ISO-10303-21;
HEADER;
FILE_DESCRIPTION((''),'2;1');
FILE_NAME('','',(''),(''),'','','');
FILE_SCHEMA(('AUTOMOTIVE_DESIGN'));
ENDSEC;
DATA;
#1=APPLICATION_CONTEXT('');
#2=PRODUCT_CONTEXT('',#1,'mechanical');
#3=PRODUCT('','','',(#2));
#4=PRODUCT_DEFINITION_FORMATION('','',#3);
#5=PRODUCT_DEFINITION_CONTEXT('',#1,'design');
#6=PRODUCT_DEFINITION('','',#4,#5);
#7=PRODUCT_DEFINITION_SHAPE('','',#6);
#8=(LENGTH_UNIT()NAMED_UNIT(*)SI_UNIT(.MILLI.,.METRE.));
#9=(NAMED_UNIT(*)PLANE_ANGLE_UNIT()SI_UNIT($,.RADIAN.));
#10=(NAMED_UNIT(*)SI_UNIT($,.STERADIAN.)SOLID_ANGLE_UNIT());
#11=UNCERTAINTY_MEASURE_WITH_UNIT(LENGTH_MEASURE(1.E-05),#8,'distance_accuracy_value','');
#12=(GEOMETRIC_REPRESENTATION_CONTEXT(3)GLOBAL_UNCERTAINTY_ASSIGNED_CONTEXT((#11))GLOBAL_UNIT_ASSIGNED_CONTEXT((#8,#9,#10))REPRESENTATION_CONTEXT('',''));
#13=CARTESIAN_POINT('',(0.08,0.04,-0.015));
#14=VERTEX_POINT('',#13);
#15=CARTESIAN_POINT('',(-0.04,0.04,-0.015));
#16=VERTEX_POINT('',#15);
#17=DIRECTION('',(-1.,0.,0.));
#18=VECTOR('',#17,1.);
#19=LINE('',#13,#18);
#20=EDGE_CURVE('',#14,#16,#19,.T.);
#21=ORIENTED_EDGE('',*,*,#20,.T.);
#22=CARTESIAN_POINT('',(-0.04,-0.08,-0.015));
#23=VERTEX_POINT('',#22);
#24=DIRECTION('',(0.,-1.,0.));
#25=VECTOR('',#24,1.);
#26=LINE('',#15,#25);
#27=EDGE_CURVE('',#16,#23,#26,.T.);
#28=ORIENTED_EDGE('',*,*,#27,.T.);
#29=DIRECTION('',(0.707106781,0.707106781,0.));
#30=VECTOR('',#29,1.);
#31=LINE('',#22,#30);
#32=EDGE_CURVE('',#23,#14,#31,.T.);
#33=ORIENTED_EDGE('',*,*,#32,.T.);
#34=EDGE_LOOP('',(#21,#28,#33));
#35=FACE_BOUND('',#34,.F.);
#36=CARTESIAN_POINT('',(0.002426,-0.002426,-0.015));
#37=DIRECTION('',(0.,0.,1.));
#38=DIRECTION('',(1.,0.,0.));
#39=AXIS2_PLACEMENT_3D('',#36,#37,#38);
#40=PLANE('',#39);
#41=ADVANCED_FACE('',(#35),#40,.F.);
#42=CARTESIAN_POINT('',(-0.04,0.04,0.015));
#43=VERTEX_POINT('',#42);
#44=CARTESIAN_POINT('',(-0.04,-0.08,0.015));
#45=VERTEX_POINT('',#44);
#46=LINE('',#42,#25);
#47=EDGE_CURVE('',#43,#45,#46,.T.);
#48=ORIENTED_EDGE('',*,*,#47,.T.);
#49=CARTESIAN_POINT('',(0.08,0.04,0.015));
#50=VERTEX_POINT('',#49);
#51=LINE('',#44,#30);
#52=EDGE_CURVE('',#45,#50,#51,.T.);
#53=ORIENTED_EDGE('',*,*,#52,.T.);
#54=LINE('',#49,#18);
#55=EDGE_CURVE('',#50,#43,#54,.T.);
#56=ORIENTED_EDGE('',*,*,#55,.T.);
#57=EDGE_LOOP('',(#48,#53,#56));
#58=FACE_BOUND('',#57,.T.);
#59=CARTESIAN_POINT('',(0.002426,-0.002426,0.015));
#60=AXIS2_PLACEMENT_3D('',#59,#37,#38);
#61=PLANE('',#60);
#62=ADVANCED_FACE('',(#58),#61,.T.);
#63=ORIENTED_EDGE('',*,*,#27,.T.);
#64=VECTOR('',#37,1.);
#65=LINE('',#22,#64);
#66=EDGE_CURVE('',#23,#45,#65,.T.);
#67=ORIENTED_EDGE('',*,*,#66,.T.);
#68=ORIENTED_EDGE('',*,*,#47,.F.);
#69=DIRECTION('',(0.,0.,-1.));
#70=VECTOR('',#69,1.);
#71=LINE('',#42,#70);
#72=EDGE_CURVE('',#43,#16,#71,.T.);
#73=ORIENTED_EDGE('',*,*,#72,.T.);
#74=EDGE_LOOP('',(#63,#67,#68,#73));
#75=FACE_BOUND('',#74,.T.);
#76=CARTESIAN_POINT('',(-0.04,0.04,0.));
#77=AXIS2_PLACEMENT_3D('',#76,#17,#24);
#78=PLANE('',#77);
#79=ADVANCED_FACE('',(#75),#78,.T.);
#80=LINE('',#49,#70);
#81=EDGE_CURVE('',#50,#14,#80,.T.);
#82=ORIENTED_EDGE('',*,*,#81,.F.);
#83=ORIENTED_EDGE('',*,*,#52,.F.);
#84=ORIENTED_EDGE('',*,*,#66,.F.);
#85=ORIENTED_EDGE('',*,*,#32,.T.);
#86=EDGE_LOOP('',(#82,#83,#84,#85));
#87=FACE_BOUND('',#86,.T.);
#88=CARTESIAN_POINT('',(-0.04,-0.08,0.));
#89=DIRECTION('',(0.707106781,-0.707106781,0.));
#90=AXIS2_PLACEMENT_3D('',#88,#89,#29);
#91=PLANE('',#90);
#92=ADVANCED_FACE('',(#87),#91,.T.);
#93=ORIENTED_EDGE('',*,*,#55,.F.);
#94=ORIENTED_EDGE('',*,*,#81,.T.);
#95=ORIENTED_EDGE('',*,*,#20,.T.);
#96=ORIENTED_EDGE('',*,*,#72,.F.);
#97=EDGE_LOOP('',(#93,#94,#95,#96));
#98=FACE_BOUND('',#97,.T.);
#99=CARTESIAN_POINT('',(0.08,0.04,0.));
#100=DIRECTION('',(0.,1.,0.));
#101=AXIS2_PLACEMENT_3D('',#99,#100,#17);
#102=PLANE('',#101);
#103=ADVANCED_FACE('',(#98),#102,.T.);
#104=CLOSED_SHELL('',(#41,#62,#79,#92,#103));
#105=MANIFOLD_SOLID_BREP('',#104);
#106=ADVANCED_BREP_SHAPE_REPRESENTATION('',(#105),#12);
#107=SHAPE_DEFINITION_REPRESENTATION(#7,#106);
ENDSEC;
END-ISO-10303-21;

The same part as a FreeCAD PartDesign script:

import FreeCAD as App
import Part
import Sketcher

V = App.Vector
Q = App.Units.Quantity


def add_polygon(sketch, points):
    """Adds a closed chain of lines whose ends are joined by coincident constraints."""
    first, n = sketch.GeometryCount, len(points)
    for a, b in zip(points, points[1:] + points[:1]):
        sketch.addGeometry(Part.LineSegment(App.Vector(*a, 0), App.Vector(*b, 0)), False)
    for i in range(n):
        sketch.addConstraint(Sketcher.Constraint("Coincident", first + i, 2, first + (i + 1) % n, 1))

doc = App.newDocument("Part")
params = doc.addObject("Spreadsheet::Sheet", "Params")
for row, (alias, value) in enumerate([
    ("sketch1_width", "0.12 mm"),
    ("pad1_length", "0.03 mm"),
], start=1):
    params.set(f"A{row}", alias)
    params.set(f"B{row}", "=" + value)
    params.setAlias(f"B{row}", alias)

body = doc.addObject("PartDesign::Body", "Body")

# Sketch on XY plane
sketch1 = body.newObject("Sketcher::SketchObject", "Sketch")
sketch1.AttachmentSupport = (doc.getObject("XY_Plane"), [""])
sketch1.MapMode = "FlatFace"
add_polygon(sketch1, [(-0.04, 0.04), (-0.04, -0.08), (0.08, 0.04)])  # lines 0-2
sketch1.addConstraint(Sketcher.Constraint("Vertical", 0))
sketch1.addConstraint(Sketcher.Constraint("Horizontal", 2))
sketch1.addConstraint(Sketcher.Constraint("Equal", 2, 0))
sketch1.addConstraint(Sketcher.Constraint("DistanceX", 2, 2, 2, 1, Q("0.12 mm")))
sketch1.addConstraint(Sketcher.Constraint("DistanceX", 0, 2, -1, 1, Q("0.04 mm")))
sketch1.addConstraint(Sketcher.Constraint("DistanceY", 0, 2, -1, 1, Q("0.08 mm")))
sketch1.setExpression("Constraints[6]", "Params.sketch1_width")
pad1 = body.newObject("PartDesign::Pad", "Pad")
pad1.Profile = sketch1
pad1.setExpression("Length", "Params.pad1_length")
pad1.Midplane = True

doc.recompute()
